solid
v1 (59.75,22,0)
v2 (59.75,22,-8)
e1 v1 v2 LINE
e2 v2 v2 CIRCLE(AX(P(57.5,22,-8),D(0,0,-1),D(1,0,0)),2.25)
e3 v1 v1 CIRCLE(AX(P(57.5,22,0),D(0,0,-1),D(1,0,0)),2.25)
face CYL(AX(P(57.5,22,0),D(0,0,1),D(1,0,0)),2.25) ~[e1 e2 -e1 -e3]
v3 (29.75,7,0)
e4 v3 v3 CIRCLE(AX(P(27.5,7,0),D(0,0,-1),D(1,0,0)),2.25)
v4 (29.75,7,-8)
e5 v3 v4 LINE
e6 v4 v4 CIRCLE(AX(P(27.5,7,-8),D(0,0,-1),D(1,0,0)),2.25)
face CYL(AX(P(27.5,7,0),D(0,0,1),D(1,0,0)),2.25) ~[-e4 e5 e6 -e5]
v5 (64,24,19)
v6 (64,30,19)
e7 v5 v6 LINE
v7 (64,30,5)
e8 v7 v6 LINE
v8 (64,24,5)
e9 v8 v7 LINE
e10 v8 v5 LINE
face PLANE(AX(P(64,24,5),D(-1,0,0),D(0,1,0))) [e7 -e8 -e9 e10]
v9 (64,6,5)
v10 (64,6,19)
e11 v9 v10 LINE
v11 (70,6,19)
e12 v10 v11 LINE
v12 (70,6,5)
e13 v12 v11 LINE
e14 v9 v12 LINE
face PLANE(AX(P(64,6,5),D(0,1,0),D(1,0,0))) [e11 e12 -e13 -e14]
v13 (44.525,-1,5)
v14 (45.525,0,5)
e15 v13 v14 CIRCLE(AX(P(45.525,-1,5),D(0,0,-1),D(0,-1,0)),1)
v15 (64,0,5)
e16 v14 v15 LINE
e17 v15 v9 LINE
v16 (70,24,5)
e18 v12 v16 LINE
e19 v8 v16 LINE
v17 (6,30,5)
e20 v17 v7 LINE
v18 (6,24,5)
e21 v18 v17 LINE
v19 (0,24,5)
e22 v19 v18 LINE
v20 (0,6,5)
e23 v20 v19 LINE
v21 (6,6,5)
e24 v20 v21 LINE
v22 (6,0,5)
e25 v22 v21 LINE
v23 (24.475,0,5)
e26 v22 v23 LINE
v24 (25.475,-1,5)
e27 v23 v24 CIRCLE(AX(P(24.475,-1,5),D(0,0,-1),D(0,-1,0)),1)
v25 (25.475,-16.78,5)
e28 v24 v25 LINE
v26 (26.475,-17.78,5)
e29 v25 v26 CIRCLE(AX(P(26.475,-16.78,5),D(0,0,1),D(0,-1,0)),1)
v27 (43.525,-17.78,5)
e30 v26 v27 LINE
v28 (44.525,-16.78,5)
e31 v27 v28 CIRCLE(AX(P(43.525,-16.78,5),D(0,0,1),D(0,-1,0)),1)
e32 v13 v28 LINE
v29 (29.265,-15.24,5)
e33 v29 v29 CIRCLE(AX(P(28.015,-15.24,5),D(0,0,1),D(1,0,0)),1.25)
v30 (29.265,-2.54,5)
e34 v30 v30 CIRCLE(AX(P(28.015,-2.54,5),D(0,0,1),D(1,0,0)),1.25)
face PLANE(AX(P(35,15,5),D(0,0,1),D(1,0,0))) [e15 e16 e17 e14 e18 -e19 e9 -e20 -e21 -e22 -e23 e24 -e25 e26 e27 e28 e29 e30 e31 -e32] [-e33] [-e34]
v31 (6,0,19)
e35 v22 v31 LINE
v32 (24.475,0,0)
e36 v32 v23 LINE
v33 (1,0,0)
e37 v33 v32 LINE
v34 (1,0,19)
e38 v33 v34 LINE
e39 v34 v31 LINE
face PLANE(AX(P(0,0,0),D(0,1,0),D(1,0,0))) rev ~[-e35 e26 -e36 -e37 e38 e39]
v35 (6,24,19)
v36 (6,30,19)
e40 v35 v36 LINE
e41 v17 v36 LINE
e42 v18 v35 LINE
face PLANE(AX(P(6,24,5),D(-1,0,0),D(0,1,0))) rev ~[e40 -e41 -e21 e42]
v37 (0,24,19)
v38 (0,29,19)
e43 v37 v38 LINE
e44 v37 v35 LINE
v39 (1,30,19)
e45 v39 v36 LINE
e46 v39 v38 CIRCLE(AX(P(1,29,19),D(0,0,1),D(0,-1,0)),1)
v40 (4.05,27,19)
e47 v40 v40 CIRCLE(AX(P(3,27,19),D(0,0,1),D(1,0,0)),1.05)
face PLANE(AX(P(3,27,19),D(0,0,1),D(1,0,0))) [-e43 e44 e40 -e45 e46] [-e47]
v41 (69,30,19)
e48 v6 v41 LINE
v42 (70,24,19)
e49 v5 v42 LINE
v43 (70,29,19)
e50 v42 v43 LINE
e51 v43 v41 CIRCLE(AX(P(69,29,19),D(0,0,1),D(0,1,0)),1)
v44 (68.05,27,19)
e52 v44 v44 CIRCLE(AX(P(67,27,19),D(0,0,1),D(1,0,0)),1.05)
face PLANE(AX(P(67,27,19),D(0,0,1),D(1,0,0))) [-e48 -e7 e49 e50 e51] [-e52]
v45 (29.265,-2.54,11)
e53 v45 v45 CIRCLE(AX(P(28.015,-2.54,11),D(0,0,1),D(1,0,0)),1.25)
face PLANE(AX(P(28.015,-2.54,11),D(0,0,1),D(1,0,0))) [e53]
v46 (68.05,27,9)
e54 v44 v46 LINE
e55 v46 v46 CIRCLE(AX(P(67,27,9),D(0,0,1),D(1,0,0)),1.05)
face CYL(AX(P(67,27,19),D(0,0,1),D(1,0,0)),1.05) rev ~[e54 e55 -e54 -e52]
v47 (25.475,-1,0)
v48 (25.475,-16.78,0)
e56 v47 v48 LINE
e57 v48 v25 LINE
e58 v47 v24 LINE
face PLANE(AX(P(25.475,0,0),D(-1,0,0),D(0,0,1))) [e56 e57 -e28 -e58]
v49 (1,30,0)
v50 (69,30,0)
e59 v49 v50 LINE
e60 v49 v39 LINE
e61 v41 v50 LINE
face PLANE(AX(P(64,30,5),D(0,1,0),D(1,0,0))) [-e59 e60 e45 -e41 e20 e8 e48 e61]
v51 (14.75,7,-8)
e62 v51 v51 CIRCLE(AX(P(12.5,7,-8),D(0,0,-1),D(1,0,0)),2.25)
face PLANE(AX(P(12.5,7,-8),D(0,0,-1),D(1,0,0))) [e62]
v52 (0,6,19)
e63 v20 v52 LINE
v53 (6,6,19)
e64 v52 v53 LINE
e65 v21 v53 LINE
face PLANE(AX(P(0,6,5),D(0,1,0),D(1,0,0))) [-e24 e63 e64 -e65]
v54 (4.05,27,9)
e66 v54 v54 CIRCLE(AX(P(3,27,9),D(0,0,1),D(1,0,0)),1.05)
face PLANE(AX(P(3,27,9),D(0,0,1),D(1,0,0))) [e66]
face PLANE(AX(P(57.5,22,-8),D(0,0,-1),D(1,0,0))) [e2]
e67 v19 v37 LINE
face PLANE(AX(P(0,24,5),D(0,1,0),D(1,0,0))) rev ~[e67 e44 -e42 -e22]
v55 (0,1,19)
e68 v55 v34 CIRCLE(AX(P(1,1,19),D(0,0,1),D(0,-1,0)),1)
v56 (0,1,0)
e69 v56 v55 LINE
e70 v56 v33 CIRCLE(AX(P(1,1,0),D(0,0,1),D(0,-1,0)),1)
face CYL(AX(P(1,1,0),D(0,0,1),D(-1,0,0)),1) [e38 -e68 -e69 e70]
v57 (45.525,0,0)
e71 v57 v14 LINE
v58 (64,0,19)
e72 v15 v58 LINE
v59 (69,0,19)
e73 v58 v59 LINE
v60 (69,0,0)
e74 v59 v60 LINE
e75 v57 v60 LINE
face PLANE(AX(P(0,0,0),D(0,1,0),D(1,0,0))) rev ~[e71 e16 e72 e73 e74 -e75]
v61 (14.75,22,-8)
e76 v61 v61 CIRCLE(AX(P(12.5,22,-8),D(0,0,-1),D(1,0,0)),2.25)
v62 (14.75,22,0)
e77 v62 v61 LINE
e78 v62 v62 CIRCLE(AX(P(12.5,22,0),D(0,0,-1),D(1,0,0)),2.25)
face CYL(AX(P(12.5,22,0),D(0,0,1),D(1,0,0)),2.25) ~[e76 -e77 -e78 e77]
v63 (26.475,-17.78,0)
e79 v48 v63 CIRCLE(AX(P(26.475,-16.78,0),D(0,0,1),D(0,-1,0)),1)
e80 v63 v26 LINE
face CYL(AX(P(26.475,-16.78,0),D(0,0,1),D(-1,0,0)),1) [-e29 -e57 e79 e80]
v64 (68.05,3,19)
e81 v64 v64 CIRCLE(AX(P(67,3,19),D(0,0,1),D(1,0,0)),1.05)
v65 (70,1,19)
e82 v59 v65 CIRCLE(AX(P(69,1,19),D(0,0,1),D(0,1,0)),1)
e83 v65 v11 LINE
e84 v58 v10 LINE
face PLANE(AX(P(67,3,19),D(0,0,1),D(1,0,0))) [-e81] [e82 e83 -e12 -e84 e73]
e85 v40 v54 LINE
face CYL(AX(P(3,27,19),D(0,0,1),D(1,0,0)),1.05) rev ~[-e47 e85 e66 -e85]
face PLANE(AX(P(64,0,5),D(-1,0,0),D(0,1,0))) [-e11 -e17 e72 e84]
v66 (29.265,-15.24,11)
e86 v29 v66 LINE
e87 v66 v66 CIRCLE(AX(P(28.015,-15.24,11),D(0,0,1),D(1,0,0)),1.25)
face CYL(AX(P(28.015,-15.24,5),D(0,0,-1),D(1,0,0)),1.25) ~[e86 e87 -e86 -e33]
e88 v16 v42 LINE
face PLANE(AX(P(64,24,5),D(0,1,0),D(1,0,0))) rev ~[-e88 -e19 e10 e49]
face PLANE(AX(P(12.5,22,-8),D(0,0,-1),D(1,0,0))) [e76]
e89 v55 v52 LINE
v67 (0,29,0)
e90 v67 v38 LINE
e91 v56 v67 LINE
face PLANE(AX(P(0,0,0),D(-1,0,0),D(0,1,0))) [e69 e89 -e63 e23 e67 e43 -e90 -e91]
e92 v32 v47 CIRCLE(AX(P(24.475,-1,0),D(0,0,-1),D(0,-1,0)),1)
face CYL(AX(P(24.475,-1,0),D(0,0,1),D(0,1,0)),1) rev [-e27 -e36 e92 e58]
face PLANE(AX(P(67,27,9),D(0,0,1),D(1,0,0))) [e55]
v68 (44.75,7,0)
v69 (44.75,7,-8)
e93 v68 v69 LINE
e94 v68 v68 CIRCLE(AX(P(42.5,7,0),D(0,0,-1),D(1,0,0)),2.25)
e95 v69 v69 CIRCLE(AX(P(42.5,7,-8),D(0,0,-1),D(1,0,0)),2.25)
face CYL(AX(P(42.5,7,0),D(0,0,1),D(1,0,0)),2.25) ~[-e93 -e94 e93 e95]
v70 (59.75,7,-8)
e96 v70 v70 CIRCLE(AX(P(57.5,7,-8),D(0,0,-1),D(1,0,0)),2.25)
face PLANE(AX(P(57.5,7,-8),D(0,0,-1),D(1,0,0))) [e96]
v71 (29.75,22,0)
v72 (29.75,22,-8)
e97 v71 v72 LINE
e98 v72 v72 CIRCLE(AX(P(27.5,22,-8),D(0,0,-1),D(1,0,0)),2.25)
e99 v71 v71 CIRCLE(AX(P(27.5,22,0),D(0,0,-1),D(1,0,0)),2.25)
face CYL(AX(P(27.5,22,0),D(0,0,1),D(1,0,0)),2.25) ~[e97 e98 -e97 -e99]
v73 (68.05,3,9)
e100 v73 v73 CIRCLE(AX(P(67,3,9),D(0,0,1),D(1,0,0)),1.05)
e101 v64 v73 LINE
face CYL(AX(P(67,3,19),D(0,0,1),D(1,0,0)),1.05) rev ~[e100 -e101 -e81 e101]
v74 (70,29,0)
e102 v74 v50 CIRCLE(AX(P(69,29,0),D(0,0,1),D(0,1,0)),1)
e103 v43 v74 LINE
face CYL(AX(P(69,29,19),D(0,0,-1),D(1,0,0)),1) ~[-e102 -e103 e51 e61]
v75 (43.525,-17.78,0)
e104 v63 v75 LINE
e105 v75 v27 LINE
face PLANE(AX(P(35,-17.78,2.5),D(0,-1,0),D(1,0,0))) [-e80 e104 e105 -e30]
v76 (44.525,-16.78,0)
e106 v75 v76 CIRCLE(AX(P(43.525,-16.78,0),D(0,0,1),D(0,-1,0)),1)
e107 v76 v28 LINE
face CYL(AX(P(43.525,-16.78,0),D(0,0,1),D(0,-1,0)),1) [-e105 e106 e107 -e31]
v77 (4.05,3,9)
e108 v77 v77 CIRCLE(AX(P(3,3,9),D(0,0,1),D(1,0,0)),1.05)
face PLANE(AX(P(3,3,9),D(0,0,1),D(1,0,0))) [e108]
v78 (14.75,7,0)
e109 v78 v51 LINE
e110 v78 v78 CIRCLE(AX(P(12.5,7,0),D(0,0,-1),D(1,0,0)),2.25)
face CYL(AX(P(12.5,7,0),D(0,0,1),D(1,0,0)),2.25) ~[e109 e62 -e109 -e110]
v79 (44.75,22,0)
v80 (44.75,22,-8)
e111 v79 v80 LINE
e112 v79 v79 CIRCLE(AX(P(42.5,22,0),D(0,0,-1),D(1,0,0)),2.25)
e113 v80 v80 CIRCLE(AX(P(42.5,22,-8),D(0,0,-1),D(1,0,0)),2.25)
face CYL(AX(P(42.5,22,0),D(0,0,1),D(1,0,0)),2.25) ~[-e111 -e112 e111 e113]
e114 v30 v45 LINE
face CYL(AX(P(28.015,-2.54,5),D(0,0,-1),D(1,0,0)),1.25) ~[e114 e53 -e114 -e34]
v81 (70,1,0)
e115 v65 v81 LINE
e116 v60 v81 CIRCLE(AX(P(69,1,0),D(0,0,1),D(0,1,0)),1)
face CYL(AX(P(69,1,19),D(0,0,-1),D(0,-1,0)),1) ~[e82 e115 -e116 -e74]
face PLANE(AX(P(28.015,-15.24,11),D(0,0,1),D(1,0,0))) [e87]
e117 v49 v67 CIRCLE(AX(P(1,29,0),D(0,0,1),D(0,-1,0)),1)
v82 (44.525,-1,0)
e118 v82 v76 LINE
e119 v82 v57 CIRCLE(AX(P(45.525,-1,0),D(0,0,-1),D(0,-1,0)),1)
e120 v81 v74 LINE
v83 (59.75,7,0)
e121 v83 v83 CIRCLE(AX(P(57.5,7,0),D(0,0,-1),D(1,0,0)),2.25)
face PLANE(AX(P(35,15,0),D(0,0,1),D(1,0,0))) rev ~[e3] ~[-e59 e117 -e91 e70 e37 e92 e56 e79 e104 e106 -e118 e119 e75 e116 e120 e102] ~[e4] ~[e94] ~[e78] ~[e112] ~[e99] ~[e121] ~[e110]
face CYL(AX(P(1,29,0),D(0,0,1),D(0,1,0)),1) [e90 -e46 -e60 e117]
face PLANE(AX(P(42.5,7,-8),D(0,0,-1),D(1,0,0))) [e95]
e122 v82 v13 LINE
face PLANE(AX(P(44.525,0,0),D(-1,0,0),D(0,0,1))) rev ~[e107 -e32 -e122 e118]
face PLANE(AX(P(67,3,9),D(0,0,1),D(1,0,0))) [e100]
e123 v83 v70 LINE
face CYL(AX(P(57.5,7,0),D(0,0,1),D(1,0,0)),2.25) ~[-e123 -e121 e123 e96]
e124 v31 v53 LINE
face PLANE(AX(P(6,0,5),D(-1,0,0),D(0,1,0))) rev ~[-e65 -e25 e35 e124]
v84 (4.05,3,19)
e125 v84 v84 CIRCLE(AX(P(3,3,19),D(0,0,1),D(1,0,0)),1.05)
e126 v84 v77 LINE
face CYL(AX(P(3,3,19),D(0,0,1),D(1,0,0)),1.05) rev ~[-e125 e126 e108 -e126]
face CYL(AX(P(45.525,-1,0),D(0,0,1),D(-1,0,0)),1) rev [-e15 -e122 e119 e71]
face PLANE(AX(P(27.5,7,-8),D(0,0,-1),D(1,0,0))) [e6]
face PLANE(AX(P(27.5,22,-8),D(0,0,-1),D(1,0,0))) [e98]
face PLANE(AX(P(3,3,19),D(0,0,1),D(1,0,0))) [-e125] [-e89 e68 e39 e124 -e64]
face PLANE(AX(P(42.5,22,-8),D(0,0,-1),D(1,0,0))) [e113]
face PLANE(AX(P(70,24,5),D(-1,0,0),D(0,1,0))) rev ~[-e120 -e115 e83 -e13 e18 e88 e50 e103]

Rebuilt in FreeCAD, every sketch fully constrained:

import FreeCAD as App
import Part
import Sketcher
from FreeCAD import Vector
Q = App.Units.Quantity


def edges_at(feature, points):
    """Names of the edges that pass closest to the given points."""
    edges = feature.Shape.Edges
    near = lambda p: min(range(len(edges)), key=lambda i: edges[i].distToShape(Part.Vertex(*p))[0])
    return sorted({f"Edge{near(p) + 1}" for p in points})


def add_polygon(sketch, points):
    """Adds a closed chain of lines whose ends are joined by coincident constraints."""
    first, n = sketch.GeometryCount, len(points)
    for a, b in zip(points, points[1:] + points[:1]):
        sketch.addGeometry(Part.LineSegment(App.Vector(*a, 0), App.Vector(*b, 0)), False)
    for i in range(n):
        sketch.addConstraint(Sketcher.Constraint("Coincident", first + i, 2, first + (i + 1) % n, 1))

doc = App.newDocument("Part")
body = doc.addObject("PartDesign::Body", "Body")

sketch1 = body.newObject("Sketcher::SketchObject", "Sketch")
sketch1.AttachmentSupport = (doc.getObject("XZ_Plane"), [""])
sketch1.MapMode = "FlatFace"
add_polygon(sketch1, [(25, 5), (25, 0), (45, 0), (45, 5)])
sketch1.addConstraint(Sketcher.Constraint("Vertical", 0))
sketch1.addConstraint(Sketcher.Constraint("Horizontal", 1))
sketch1.addConstraint(Sketcher.Constraint("Vertical", 2))
sketch1.addConstraint(Sketcher.Constraint("Horizontal", 3))
sketch1.addConstraint(Sketcher.Constraint("PointOnObject", 0, 2, -1))
sketch1.addConstraint(Sketcher.Constraint("DistanceY", 0, 2, 0, 1, Q("5 mm")))
sketch1.addConstraint(Sketcher.Constraint("DistanceX", 1, 1, 1, 2, Q("19.05 mm")))
sketch1.addConstraint(Sketcher.Constraint("DistanceX", -1, 1, 0, 2, Q("25.475 mm")))
pad1 = body.newObject("PartDesign::Pad", "Pad")
pad1.Profile = sketch1
pad1.Length = 17.78
body2 = doc.addObject("PartDesign::Body", "Body001")
body2.AllowCompound = True

sketch2 = body2.newObject("Sketcher::SketchObject", "Sketch001")
sketch2.AttachmentSupport = (doc.getObject("XY_Plane001"), [""])
sketch2.MapMode = "FlatFace"
sketch2.addGeometry(Part.Circle(Vector(42.5, 7, 0), Vector(0, 0, 1), 2.2), False)
sketch2.addGeometry(Part.Circle(Vector(27.5, 7, 0), Vector(0, 0, 1), 2.2), False)
sketch2.addGeometry(Part.Circle(Vector(57.5, 7, 0), Vector(0, 0, 1), 2.2), False)
sketch2.addGeometry(Part.Circle(Vector(12.5, 7, 0), Vector(0, 0, 1), 2.2), False)
sketch2.addGeometry(Part.Circle(Vector(42.5, 22, 0), Vector(0, 0, 1), 2.2), False)
sketch2.addGeometry(Part.Circle(Vector(57.5, 22, 0), Vector(0, 0, 1), 2.2), False)
sketch2.addGeometry(Part.Circle(Vector(12.5, 22, 0), Vector(0, 0, 1), 2.2), False)
sketch2.addGeometry(Part.Circle(Vector(27.5, 22, 0), Vector(0, 0, 1), 2.2), False)
sketch2.addConstraint(Sketcher.Constraint("Equal", 0, 1))
sketch2.addConstraint(Sketcher.Constraint("Equal", 1, 2))
sketch2.addConstraint(Sketcher.Constraint("Equal", 2, 3))
sketch2.addConstraint(Sketcher.Constraint("Equal", 3, 4))
sketch2.addConstraint(Sketcher.Constraint("Equal", 4, 5))
sketch2.addConstraint(Sketcher.Constraint("Equal", 5, 6))
sketch2.addConstraint(Sketcher.Constraint("Equal", 6, 7))
sketch2.addConstraint(Sketcher.Constraint("Horizontal", 0, 3, 1, 3))
sketch2.addConstraint(Sketcher.Constraint("Horizontal", 1, 3, 2, 3))
sketch2.addConstraint(Sketcher.Constraint("Horizontal", 2, 3, 3, 3))
sketch2.addConstraint(Sketcher.Constraint("Horizontal", 4, 3, 5, 3))
sketch2.addConstraint(Sketcher.Constraint("Horizontal", 5, 3, 6, 3))
sketch2.addConstraint(Sketcher.Constraint("Horizontal", 6, 3, 7, 3))
sketch2.addConstraint(Sketcher.Constraint("Vertical", 0, 3, 4, 3))
sketch2.addConstraint(Sketcher.Constraint("Vertical", 2, 3, 5, 3))
sketch2.addConstraint(Sketcher.Constraint("Vertical", 3, 3, 6, 3))
sketch2.addConstraint(Sketcher.Constraint("Vertical", 1, 3, 7, 3))
sketch2.addConstraint(Sketcher.Constraint("Diameter", 0, Q("4.5 mm")))
sketch2.addConstraint(Sketcher.Constraint("DistanceY", -1, 1, 0, 3, Q("7 mm")))
sketch2.addConstraint(Sketcher.Constraint("DistanceY", -1, 1, 4, 3, Q("22 mm")))
sketch2.addConstraint(Sketcher.Constraint("DistanceX", 1, 3, 0, 3, Q("15 mm")))
sketch2.addConstraint(Sketcher.Constraint("DistanceX", 0, 3, 2, 3, Q("15 mm")))
sketch2.addConstraint(Sketcher.Constraint("DistanceX", 3, 3, 1, 3, Q("15 mm")))
sketch2.addConstraint(Sketcher.Constraint("DistanceX", -1, 1, 0, 3, Q("42.5 mm")))
pad2 = body2.newObject("PartDesign::Pad", "Pad001")
pad2.Profile = sketch2
pad2.Length = 8
pad2.Reversed = True
body3 = doc.addObject("PartDesign::Body", "Body002")
body3.AllowCompound = True

sketch3 = body3.newObject("Sketcher::SketchObject", "Sketch002")
sketch3.AttachmentSupport = (doc.getObject("XY_Plane002"), [""])
sketch3.MapMode = "FlatFace"
sketch3.AttachmentOffset = App.Placement(Vector(0, 0, 19), App.Rotation())
sketch3.addGeometry(Part.Circle(Vector(3, 27, 0), Vector(0, 0, 1), 1.1), False)
sketch3.addGeometry(Part.Circle(Vector(3, 3, 0), Vector(0, 0, 1), 1.1), False)
sketch3.addGeometry(Part.Circle(Vector(67, 3, 0), Vector(0, 0, 1), 1.1), False)
sketch3.addGeometry(Part.Circle(Vector(67, 27, 0), Vector(0, 0, 1), 1.1), False)
sketch3.addConstraint(Sketcher.Constraint("Equal", 0, 1))
sketch3.addConstraint(Sketcher.Constraint("Equal", 1, 2))
sketch3.addConstraint(Sketcher.Constraint("Equal", 2, 3))
sketch3.addConstraint(Sketcher.Constraint("Horizontal", 1, 3, 2, 3))
sketch3.addConstraint(Sketcher.Constraint("Horizontal", 0, 3, 3, 3))
sketch3.addConstraint(Sketcher.Constraint("Vertical", 0, 3, 1, 3))
sketch3.addConstraint(Sketcher.Constraint("Vertical", 2, 3, 3, 3))
sketch3.addConstraint(Sketcher.Constraint("Diameter", 0, Q("2.1 mm")))
sketch3.addConstraint(Sketcher.Constraint("DistanceX", -1, 1, 0, 3, Q("3 mm")))
sketch3.addConstraint(Sketcher.Constraint("DistanceY", -1, 1, 0, 3, Q("27 mm")))
sketch3.addConstraint(Sketcher.Constraint("DistanceY", -1, 1, 1, 3, Q("3 mm")))
sketch3.addConstraint(Sketcher.Constraint("DistanceX", -1, 1, 2, 3, Q("67 mm")))
pad3 = body3.newObject("PartDesign::Pad", "Pad002")
pad3.Profile = sketch3
pad3.Length = 10
pad3.Reversed = True
body4 = doc.addObject("PartDesign::Body", "Body003")
body4.AllowCompound = True

sketch4 = body4.newObject("Sketcher::SketchObject", "Sketch003")
sketch4.AttachmentSupport = (doc.getObject("XY_Plane003"), [""])
sketch4.MapMode = "FlatFace"
sketch4.AttachmentOffset = App.Placement(Vector(0, 0, 5), App.Rotation())
add_polygon(sketch4, [(0, 30), (0, 24), (6, 24), (6, 30)])
add_polygon(sketch4, [(0, 6), (0, 0), (6, 0), (6, 6)])
add_polygon(sketch4, [(64, 6), (64, 0), (70, 0), (70, 6)])
add_polygon(sketch4, [(64, 30), (64, 24), (70, 24), (70, 30)])
sketch4.addConstraint(Sketcher.Constraint("Vertical", 0))
sketch4.addConstraint(Sketcher.Constraint("Horizontal", 1))
sketch4.addConstraint(Sketcher.Constraint("Vertical", 2))
sketch4.addConstraint(Sketcher.Constraint("Horizontal", 3))
sketch4.addConstraint(Sketcher.Constraint("Vertical", 4))
sketch4.addConstraint(Sketcher.Constraint("Horizontal", 5))
sketch4.addConstraint(Sketcher.Constraint("Vertical", 6))
sketch4.addConstraint(Sketcher.Constraint("Horizontal", 7))
sketch4.addConstraint(Sketcher.Constraint("Vertical", 8))
sketch4.addConstraint(Sketcher.Constraint("Horizontal", 9))
sketch4.addConstraint(Sketcher.Constraint("Vertical", 10))
sketch4.addConstraint(Sketcher.Constraint("Horizontal", 11))
sketch4.addConstraint(Sketcher.Constraint("Vertical", 12))
sketch4.addConstraint(Sketcher.Constraint("Horizontal", 13))
sketch4.addConstraint(Sketcher.Constraint("Vertical", 14))
sketch4.addConstraint(Sketcher.Constraint("Horizontal", 15))
sketch4.addConstraint(Sketcher.Constraint("Coincident", 4, 2, -1, 1))
sketch4.addConstraint(Sketcher.Constraint("PointOnObject", 0, 2, -2))
sketch4.addConstraint(Sketcher.Constraint("PointOnObject", 8, 2, -1))
sketch4.addConstraint(Sketcher.Constraint("Horizontal", 7, 2, 10, 2))
sketch4.addConstraint(Sketcher.Constraint("Horizontal", 1, 2, 12, 2))
sketch4.addConstraint(Sketcher.Constraint("Horizontal", 3, 2, 14, 2))
sketch4.addConstraint(Sketcher.Constraint("Vertical", 2, 2, 5, 2))
sketch4.addConstraint(Sketcher.Constraint("Vertical", 11, 2, 12, 2))
sketch4.addConstraint(Sketcher.Constraint("Vertical", 10, 2, 13, 2))
sketch4.addConstraint(Sketcher.Constraint("Equal", 7, 9))
sketch4.addConstraint(Sketcher.Constraint("Equal", 15, 0))
sketch4.addConstraint(Sketcher.Constraint("Equal", 2, 4))
sketch4.addConstraint(Sketcher.Constraint("DistanceX", 1, 1, 1, 2, Q("6 mm")))
sketch4.addConstraint(Sketcher.Constraint("DistanceY", -1, 1, 0, 2, Q("24 mm")))
sketch4.addConstraint(Sketcher.Constraint("DistanceX", -1, 1, 8, 2, Q("64 mm")))
pad4 = body4.newObject("PartDesign::Pad", "Pad003")
pad4.Profile = sketch4
pad4.Length = 14
doc.recompute()

boolean = body4.newObject("PartDesign::Boolean", "Boolean")
boolean.Type = "Cut"
boolean.addObjects([body3])
body5 = doc.addObject("PartDesign::Body", "Body004")

sketch5 = body5.newObject("Sketcher::SketchObject", "Sketch004")
sketch5.AttachmentSupport = (doc.getObject("XY_Plane004"), [""])
sketch5.MapMode = "FlatFace"
add_polygon(sketch5, [(0, 30), (0, 0), (70, 0), (70, 30)])
sketch5.addConstraint(Sketcher.Constraint("Vertical", 0))
sketch5.addConstraint(Sketcher.Constraint("Horizontal", 1))
sketch5.addConstraint(Sketcher.Constraint("Vertical", 2))
sketch5.addConstraint(Sketcher.Constraint("Horizontal", 3))
sketch5.addConstraint(Sketcher.Constraint("Coincident", 0, 2, -1, 1))
sketch5.addConstraint(Sketcher.Constraint("DistanceX", 1, 1, 1, 2, Q("70 mm")))
sketch5.addConstraint(Sketcher.Constraint("DistanceY", 0, 2, 0, 1, Q("30 mm")))
pad5 = body5.newObject("PartDesign::Pad", "Pad004")
pad5.Profile = sketch5
pad5.Length = 5
doc.recompute()

boolean2 = body5.newObject("PartDesign::Boolean", "Boolean001")
boolean2.Type = "Fuse"
boolean2.addObjects([body4])
doc.recompute()

boolean3 = body5.newObject("PartDesign::Boolean", "Boolean002")
boolean3.Type = "Fuse"
boolean3.addObjects([body2])
body6 = doc.addObject("PartDesign::Body", "Body005")
body6.AllowCompound = True

sketch6 = body6.newObject("Sketcher::SketchObject", "Sketch005")
sketch6.AttachmentSupport = (doc.getObject("XY_Plane005"), [""])
sketch6.MapMode = "FlatFace"
sketch6.AttachmentOffset = App.Placement(Vector(0, 0, 5), App.Rotation())
sketch6.addGeometry(Part.Circle(Vector(28, -2.5, 0), Vector(0, 0, 1), 1.2), False)
sketch6.addGeometry(Part.Circle(Vector(28, -15.2, 0), Vector(0, 0, 1), 1.2), False)
sketch6.addConstraint(Sketcher.Constraint("Equal", 0, 1))
sketch6.addConstraint(Sketcher.Constraint("Vertical", 0, 3, 1, 3))
sketch6.addConstraint(Sketcher.Constraint("Diameter", 0, Q("2.5 mm")))
sketch6.addConstraint(Sketcher.Constraint("DistanceY", 1, 3, 0, 3, Q("12.7 mm")))
sketch6.addConstraint(Sketcher.Constraint("DistanceY", 0, 3, -1, 1, Q("2.54 mm")))
sketch6.addConstraint(Sketcher.Constraint("DistanceX", -1, 1, 0, 3, Q("28.015 mm")))
pad6 = body6.newObject("PartDesign::Pad", "Pad005")
pad6.Profile = sketch6
pad6.Length = 6
doc.recompute()

boolean4 = body6.newObject("PartDesign::Boolean", "Boolean003")
boolean4.Type = "Fuse"
boolean4.addObjects([body])
doc.recompute()

boolean5 = body6.newObject("PartDesign::Boolean", "Boolean004")
boolean5.Type = "Fuse"
boolean5.addObjects([body5])
doc.recompute()

fillet = body6.newObject("PartDesign::Fillet", "Fillet")
fillet.Base = (boolean5, edges_at(boolean5, [(0, 0, 9.5), (0, 0, 9.5)]))
fillet.Radius = 1
doc.recompute()

fillet2 = body6.newObject("PartDesign::Fillet", "Fillet001")
fillet2.Base = (fillet, edges_at(fillet, [(25.475, 0, 2.5), (25.475, -17.78, 2.5)]))
fillet2.Radius = 1
doc.recompute()

fillet3 = body6.newObject("PartDesign::Fillet", "Fillet002")
fillet3.Base = (fillet2, edges_at(fillet2, [(44.525, -17.78, 2.5)]))
fillet3.Radius = 1
doc.recompute()

fillet4 = body6.newObject("PartDesign::Fillet", "Fillet003")
fillet4.Base = (fillet3, edges_at(fillet3, [(44.525, 0, 2.5)]))
fillet4.Radius = 1
doc.recompute()

fillet5 = body6.newObject("PartDesign::Fillet", "Fillet004")
fillet5.Base = (fillet4, edges_at(fillet4, [(70, 0, 9.5), (70, 0, 9.5)]))
fillet5.Radius = 1
doc.recompute()

fillet6 = body6.newObject("PartDesign::Fillet", "Fillet005")
fillet6.Base = (fillet5, edges_at(fillet5, [(70, 30, 9.5), (70, 30, 9.5)]))
fillet6.Radius = 1
doc.recompute()

fillet7 = body6.newObject("PartDesign::Fillet", "Fillet006")
fillet7.Base = (fillet6, edges_at(fillet6, [(0, 30, 9.5), (0, 30, 9.5)]))
fillet7.Radius = 1

doc.recompute()
